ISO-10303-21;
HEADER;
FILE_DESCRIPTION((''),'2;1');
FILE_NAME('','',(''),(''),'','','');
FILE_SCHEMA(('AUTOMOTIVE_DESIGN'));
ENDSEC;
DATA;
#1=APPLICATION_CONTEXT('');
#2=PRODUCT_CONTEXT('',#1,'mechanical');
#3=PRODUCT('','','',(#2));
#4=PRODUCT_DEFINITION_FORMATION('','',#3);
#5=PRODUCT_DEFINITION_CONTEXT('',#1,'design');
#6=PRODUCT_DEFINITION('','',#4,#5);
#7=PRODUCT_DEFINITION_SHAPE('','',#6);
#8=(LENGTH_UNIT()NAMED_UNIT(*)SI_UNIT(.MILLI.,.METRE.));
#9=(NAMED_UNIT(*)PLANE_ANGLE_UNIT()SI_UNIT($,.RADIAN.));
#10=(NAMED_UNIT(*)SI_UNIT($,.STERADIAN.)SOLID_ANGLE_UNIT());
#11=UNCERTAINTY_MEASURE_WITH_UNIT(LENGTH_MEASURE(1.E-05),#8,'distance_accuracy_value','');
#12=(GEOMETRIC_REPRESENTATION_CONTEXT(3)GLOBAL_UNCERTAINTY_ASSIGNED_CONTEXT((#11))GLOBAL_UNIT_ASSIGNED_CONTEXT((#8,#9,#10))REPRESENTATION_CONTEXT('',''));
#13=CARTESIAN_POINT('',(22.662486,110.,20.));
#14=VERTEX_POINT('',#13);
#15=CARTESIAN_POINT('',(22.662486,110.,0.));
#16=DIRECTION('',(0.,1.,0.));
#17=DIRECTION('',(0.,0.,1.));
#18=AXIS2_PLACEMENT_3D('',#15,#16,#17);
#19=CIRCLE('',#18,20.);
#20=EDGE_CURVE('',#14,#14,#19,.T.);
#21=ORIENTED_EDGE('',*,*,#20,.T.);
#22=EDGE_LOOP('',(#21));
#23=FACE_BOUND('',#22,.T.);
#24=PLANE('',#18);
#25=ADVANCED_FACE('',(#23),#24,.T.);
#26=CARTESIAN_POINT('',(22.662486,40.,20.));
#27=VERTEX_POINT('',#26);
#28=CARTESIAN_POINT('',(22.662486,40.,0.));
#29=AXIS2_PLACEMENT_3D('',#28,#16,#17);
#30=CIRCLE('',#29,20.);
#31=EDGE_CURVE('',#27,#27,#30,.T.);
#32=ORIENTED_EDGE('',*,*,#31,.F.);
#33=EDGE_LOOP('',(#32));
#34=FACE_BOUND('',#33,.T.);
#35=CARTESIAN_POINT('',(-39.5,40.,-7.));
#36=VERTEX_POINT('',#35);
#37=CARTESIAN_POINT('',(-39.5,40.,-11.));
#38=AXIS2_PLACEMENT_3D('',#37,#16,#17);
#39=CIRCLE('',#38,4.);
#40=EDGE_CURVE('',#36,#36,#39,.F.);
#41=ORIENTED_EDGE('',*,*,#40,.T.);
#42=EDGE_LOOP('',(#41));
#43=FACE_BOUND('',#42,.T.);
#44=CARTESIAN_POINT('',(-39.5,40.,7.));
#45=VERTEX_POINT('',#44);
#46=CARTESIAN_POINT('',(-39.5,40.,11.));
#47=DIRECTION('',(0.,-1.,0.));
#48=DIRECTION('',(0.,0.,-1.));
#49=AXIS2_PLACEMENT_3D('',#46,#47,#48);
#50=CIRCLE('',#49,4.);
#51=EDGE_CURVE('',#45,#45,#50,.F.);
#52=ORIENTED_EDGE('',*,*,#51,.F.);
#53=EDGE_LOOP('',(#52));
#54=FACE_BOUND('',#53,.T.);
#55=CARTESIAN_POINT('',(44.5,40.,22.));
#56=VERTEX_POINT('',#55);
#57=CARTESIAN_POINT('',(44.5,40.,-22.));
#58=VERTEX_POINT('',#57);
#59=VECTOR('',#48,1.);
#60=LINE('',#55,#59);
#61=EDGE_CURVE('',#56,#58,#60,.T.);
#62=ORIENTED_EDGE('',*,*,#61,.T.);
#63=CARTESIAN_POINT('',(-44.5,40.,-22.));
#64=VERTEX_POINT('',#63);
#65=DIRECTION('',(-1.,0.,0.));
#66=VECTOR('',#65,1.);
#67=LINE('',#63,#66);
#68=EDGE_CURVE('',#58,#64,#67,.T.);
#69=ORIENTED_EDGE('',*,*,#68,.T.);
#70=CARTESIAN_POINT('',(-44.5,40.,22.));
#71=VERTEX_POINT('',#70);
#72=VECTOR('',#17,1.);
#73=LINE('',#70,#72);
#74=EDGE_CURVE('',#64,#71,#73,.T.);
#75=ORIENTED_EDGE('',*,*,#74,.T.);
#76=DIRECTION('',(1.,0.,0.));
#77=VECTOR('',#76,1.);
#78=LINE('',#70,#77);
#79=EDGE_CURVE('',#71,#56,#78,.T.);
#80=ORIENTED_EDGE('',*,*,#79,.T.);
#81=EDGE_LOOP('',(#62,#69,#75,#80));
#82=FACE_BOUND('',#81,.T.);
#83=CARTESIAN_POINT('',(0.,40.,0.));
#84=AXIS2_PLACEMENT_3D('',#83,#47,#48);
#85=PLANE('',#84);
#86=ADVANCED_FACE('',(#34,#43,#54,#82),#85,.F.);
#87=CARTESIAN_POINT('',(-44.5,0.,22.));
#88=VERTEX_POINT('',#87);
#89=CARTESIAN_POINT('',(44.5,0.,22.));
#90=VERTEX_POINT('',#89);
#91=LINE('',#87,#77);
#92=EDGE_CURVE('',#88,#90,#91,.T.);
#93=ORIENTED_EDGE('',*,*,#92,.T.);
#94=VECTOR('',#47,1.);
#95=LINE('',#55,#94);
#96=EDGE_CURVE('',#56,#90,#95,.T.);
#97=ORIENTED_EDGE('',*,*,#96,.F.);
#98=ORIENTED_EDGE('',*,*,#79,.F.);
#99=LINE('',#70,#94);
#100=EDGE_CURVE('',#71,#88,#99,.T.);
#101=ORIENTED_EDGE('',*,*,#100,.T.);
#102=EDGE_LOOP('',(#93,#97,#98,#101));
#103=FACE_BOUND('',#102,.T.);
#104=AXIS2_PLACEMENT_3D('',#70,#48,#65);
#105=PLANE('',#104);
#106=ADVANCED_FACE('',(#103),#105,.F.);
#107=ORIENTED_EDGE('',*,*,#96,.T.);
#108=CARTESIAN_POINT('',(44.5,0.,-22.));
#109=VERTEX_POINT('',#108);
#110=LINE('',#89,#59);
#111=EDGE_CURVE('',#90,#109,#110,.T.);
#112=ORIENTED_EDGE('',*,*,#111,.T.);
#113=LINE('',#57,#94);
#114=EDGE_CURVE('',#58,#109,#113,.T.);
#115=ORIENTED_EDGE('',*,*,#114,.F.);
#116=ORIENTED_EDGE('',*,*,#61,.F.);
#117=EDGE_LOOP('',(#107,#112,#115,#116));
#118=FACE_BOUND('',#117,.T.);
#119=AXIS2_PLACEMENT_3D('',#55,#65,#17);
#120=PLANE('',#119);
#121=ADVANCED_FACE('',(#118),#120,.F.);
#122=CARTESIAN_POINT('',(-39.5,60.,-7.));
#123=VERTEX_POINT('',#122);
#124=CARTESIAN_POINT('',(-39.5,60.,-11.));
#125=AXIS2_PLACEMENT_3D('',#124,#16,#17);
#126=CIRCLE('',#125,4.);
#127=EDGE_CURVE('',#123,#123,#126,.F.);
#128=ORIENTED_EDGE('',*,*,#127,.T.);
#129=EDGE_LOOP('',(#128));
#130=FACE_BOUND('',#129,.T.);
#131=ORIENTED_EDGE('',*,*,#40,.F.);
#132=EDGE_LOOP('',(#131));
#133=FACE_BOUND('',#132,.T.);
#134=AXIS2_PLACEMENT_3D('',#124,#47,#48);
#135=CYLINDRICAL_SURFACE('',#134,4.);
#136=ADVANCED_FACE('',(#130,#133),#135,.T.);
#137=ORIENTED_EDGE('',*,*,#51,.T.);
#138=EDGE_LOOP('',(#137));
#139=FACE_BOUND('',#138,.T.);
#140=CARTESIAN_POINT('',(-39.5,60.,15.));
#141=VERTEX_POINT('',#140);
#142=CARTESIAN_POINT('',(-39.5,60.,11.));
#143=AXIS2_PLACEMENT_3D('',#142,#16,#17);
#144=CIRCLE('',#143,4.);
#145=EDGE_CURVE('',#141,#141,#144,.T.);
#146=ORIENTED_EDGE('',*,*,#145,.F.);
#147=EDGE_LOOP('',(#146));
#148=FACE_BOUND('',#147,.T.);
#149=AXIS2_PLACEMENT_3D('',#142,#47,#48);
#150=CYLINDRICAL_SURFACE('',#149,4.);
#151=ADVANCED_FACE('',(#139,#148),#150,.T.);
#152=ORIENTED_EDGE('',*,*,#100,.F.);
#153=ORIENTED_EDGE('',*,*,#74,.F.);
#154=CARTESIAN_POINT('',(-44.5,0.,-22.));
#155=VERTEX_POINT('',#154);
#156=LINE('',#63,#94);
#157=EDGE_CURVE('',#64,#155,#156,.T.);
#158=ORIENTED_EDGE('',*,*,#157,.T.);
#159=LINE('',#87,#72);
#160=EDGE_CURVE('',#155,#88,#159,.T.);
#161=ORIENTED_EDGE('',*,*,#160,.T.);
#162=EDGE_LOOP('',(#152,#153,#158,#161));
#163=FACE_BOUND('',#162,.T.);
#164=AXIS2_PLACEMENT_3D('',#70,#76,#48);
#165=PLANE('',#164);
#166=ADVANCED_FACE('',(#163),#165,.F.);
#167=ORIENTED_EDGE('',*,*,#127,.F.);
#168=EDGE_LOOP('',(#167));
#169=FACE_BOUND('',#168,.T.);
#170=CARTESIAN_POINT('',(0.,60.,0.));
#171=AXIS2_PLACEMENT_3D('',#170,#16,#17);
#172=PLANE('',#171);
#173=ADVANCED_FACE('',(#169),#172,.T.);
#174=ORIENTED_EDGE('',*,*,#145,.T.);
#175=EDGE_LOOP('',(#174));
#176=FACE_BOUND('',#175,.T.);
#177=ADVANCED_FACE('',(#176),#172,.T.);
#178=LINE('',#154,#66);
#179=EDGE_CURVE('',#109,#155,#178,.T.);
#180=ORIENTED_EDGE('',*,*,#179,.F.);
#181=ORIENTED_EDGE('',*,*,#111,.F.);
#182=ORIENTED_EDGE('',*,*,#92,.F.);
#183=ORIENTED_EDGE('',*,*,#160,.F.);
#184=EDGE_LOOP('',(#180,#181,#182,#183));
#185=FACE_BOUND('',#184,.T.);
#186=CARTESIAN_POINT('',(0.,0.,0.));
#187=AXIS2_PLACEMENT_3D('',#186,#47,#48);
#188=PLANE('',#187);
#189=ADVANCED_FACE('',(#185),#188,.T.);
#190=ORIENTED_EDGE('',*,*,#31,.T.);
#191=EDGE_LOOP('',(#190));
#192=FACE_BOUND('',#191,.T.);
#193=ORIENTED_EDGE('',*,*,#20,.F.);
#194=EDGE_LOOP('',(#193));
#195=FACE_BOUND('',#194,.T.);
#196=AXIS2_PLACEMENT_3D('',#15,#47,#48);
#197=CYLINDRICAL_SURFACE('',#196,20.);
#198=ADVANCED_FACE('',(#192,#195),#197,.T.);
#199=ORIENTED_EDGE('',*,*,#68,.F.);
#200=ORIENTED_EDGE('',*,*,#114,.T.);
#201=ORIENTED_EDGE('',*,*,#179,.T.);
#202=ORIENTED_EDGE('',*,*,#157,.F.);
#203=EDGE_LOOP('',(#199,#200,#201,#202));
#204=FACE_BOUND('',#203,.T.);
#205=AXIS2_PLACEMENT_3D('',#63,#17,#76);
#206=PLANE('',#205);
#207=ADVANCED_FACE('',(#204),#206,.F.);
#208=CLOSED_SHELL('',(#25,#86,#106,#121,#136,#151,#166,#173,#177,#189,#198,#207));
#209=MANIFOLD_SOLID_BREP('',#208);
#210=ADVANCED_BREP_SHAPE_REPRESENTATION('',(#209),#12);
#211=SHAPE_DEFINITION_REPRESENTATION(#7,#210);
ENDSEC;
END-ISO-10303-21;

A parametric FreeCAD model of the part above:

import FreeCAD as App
import Part
import Sketcher

V = App.Vector


def add_polygon(sketch, points):
    """Adds a closed chain of lines whose ends are joined by coincident constraints."""
    first, n = sketch.GeometryCount, len(points)
    for a, b in zip(points, points[1:] + points[:1]):
        sketch.addGeometry(Part.LineSegment(App.Vector(*a, 0), App.Vector(*b, 0)), False)
    for i in range(n):
        sketch.addConstraint(Sketcher.Constraint("Coincident", first + i, 2, first + (i + 1) % n, 1))

doc = App.newDocument("Part")
body = doc.addObject("PartDesign::Body", "Body")

# Sketch on XZ plane
sketch1 = body.newObject("Sketcher::SketchObject", "Sketch")
sketch1.AttachmentSupport = (doc.getObject("XZ_Plane"), [""])
sketch1.MapMode = "FlatFace"
add_polygon(sketch1, [(-44, -22), (-44, 22), (44, 22), (44, -22)])  # lines 0-3
sketch1.addConstraint([
    Sketcher.Constraint("Vertical", 0),
    Sketcher.Constraint("Horizontal", 1),
    Sketcher.Constraint("Vertical", 2),
    Sketcher.Constraint("Horizontal", 3),
    Sketcher.Constraint("Symmetric", 0, 2, 2, 2, -1, 1),
    Sketcher.Constraint("DistanceX", 1, 1, 1, 2, 89.0),
    Sketcher.Constraint("DistanceY", 0, 1, 0, 2, 44.0),
])
pad1 = body.newObject("PartDesign::Pad", "Pad")
pad1.Profile = sketch1
pad1.Length = 40
pad1.Reversed = True

# Sketch on XZ plane
sketch2 = body.newObject("Sketcher::SketchObject", "Sketch001")
sketch2.AttachmentSupport = (doc.getObject("XZ_Plane"), [""])
sketch2.MapMode = "FlatFace"
sketch2.AttachmentOffset = App.Placement(V(0, 0, -40), App.Rotation())
sketch2.addGeometry(Part.Circle(V(23, 0, 0), V(0, 0, 1), 20), False)
sketch2.addConstraint([
    Sketcher.Constraint("PointOnObject", 0, 3, -1),
    Sketcher.Constraint("Diameter", 0, 40.0),
    Sketcher.Constraint("DistanceX", -1, 1, 0, 3, 22.662486),
])
pad2 = body.newObject("PartDesign::Pad", "Pad001")
pad2.Profile = sketch2
pad2.Length = 70
pad2.Reversed = True

# Sketch on XZ plane
sketch3 = body.newObject("Sketcher::SketchObject", "Sketch002")
sketch3.AttachmentSupport = (doc.getObject("XZ_Plane"), [""])
sketch3.MapMode = "FlatFace"
sketch3.AttachmentOffset = App.Placement(V(0, 0, -40), App.Rotation())
sketch3.addGeometry([
    Part.Circle(V(-39.5, 11, 0), V(0, 0, 1), 4),
    Part.Circle(V(-39.5, -11, 0), V(0, 0, 1), 4),
], False)
sketch3.addConstraint([
    Sketcher.Constraint("Equal", 0, 1),
    Sketcher.Constraint("Symmetric", 0, 3, 1, 3, -1),
    Sketcher.Constraint("Diameter", 0, 8.0),
    Sketcher.Constraint("DistanceY", -1, 1, 0, 3, 11.0),
    Sketcher.Constraint("DistanceX", 0, 3, -1, 1, 39.5),
])
pad3 = body.newObject("PartDesign::Pad", "Pad002")
pad3.Profile = sketch3
pad3.Length = 20
pad3.Reversed = True

doc.recompute()
